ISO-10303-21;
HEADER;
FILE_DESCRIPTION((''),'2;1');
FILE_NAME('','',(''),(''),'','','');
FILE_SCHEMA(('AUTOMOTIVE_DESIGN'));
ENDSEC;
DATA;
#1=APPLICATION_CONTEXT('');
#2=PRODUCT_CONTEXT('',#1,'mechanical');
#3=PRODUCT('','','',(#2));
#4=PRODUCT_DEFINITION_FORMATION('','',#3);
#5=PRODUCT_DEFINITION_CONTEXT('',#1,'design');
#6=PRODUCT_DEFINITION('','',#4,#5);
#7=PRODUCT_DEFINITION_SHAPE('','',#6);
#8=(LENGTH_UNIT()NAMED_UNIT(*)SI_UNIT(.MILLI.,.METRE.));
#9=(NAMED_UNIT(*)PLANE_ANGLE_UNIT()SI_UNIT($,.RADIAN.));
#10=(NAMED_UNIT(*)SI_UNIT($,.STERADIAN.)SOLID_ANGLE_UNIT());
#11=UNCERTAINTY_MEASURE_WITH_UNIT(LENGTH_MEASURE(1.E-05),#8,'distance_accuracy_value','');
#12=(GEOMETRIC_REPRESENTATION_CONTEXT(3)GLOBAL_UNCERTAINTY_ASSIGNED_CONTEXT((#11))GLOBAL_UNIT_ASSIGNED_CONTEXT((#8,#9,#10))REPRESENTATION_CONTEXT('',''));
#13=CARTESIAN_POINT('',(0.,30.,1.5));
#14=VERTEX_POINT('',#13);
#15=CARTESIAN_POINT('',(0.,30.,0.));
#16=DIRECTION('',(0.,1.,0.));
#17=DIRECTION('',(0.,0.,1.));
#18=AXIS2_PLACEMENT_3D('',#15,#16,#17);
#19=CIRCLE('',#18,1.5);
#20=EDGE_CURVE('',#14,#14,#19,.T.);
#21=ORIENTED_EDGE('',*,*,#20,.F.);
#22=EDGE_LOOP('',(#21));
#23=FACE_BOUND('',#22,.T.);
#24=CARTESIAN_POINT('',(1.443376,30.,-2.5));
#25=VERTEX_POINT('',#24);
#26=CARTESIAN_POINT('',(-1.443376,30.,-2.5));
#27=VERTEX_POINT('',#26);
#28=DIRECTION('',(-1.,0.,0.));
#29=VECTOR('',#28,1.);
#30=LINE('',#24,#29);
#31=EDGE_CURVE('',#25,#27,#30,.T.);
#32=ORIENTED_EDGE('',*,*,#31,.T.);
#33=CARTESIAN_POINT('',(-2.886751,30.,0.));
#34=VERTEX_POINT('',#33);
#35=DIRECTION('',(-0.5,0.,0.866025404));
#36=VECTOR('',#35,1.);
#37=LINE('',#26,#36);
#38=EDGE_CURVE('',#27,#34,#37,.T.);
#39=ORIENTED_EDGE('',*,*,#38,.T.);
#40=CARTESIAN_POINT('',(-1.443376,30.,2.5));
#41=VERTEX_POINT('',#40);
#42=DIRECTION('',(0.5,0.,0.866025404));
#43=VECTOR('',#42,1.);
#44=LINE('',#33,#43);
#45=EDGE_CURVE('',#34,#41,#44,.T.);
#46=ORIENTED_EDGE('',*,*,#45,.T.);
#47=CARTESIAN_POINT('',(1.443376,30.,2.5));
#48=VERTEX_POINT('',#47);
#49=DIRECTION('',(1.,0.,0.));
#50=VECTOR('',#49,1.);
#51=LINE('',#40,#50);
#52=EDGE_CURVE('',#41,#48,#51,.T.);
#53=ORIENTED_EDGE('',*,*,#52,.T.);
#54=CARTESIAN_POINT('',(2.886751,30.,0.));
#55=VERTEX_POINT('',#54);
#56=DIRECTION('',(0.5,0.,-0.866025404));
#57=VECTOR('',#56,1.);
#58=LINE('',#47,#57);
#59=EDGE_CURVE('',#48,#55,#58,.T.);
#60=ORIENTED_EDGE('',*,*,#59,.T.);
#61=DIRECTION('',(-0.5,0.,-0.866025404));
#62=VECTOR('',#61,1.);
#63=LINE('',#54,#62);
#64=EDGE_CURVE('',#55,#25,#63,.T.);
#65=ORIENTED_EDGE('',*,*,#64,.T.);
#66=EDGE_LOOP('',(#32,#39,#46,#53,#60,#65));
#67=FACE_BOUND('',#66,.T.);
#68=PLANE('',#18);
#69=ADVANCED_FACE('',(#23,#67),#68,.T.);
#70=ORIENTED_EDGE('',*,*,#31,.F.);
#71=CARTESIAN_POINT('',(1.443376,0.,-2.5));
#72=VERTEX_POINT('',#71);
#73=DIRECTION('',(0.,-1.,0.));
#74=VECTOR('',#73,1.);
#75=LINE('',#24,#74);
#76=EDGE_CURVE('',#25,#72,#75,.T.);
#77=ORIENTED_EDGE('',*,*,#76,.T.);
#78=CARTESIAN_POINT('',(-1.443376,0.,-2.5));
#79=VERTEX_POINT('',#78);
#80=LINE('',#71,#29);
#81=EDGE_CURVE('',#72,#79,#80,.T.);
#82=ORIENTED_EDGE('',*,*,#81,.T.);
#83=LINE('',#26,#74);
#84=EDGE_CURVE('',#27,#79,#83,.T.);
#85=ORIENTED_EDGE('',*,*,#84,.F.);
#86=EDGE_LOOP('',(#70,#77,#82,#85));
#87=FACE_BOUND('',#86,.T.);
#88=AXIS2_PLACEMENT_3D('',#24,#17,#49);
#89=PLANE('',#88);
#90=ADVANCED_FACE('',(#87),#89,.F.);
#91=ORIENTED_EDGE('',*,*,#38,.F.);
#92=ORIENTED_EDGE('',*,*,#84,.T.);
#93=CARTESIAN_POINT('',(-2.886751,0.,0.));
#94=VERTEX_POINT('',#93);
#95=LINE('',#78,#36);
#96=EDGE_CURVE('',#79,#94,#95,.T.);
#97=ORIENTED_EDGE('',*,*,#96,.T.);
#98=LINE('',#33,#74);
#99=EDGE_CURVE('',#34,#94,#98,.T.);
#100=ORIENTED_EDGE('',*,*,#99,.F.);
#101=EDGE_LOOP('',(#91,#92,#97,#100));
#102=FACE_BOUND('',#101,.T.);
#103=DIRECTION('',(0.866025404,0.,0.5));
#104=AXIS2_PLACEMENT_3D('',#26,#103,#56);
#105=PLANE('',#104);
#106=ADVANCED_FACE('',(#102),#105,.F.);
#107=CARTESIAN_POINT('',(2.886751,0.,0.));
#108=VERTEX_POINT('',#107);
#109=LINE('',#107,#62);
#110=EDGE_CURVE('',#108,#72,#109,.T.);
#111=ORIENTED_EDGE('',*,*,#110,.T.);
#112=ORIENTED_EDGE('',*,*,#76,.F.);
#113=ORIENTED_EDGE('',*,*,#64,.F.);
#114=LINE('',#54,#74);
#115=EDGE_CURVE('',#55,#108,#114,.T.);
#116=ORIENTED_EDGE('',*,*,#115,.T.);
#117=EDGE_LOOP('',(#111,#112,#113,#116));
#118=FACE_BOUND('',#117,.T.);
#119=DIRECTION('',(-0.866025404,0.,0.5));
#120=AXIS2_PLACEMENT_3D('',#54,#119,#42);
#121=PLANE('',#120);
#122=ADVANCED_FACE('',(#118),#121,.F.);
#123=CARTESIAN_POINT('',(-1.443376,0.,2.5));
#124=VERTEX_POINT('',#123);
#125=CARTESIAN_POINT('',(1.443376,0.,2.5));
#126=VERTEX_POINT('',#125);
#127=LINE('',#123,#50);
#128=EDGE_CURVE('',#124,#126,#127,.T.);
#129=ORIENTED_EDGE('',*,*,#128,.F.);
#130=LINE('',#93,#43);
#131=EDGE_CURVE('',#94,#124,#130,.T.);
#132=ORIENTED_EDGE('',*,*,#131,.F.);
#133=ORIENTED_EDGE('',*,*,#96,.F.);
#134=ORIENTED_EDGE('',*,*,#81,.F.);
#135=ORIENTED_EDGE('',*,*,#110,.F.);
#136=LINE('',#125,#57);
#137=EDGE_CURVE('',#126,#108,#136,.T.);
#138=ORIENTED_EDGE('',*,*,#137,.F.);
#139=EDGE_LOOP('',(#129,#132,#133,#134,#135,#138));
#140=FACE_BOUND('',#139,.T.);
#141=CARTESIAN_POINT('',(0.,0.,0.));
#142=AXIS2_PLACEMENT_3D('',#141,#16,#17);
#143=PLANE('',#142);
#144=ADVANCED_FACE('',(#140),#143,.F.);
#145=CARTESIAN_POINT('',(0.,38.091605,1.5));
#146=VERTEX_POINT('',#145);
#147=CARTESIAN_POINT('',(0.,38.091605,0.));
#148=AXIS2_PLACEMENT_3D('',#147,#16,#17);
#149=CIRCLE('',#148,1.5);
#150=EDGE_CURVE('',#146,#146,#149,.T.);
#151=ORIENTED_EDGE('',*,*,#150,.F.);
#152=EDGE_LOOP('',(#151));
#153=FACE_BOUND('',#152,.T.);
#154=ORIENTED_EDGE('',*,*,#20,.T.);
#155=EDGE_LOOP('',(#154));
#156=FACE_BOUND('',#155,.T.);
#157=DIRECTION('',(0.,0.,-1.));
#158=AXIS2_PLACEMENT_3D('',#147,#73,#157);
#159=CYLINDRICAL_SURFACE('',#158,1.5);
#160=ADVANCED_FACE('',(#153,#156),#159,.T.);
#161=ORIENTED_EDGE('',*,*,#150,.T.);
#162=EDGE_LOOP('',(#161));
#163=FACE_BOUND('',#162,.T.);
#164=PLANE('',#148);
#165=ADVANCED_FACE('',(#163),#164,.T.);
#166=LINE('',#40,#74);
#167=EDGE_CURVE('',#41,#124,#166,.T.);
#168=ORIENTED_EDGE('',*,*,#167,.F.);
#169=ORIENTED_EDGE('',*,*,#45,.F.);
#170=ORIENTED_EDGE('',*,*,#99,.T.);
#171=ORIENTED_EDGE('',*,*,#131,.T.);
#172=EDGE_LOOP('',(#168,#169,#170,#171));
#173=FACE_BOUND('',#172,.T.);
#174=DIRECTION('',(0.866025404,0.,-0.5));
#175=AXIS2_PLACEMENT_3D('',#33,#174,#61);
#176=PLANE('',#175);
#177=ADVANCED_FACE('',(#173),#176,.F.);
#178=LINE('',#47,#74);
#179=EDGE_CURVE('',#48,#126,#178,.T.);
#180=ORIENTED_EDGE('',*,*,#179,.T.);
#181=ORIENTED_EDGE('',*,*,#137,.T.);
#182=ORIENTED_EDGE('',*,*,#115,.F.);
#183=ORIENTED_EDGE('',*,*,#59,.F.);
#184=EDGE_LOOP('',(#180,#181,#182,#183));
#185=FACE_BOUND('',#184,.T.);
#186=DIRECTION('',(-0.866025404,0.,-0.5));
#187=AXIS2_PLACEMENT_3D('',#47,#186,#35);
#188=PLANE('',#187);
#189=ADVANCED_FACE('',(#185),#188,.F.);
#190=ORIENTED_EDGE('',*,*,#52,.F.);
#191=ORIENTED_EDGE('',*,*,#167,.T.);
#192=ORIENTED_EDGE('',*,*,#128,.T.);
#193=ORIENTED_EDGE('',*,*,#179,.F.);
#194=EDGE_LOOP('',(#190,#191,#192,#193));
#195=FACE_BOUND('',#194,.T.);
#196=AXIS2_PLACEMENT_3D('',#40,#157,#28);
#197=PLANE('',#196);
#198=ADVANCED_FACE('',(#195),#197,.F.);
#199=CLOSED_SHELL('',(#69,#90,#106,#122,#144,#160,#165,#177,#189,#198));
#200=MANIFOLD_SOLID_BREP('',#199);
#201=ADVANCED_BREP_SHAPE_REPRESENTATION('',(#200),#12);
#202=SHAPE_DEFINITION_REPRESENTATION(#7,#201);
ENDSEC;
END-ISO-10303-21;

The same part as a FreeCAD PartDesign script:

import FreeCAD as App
import Part
import Sketcher

V = App.Vector
Q = App.Units.Quantity


def add_polygon(sketch, points):
    """Adds a closed chain of lines whose ends are joined by coincident constraints."""
    first, n = sketch.GeometryCount, len(points)
    for a, b in zip(points, points[1:] + points[:1]):
        sketch.addGeometry(Part.LineSegment(App.Vector(*a, 0), App.Vector(*b, 0)), False)
    for i in range(n):
        sketch.addConstraint(Sketcher.Constraint("Coincident", first + i, 2, first + (i + 1) % n, 1))

doc = App.newDocument("Part")
params = doc.addObject("Spreadsheet::Sheet", "Params")
for row, (alias, value) in enumerate([
    ("pad1_length", "30 mm"),
    ("sketch2_diameter", "3 mm"),
    ("pad2_length", "8.091605 mm"),
    ("sketch3_diameter", "3 mm"),
    ("pad3_length", "8 mm"),
], start=1):
    params.set(f"A{row}", alias)
    params.set(f"B{row}", "=" + value)
    params.setAlias(f"B{row}", alias)

body = doc.addObject("PartDesign::Body", "Body")

# Sketch on XZ plane
sketch1 = doc.addObject("Sketcher::SketchObject", "Sketch")
body.addObject(sketch1)
sketch1.AttachmentSupport = (doc.XZ_Plane, [""])
sketch1.MapMode = "FlatFace"
add_polygon(sketch1, [(-2.886751, 0), (-1.443376, 2.5), (1.443376, 2.5), (2.886751, 0), (1.443376, -2.5), (-1.443376, -2.5)])  # lines 0-5
sketch1.addConstraint(Sketcher.Constraint("Horizontal", 1))
sketch1.addConstraint(Sketcher.Constraint("Horizontal", 4))
sketch1.addConstraint(Sketcher.Constraint("Symmetric", 0, 2, 3, 2, -1, 1))
sketch1.addConstraint(Sketcher.Constraint("Symmetric", 2, 2, 5, 2, -1, 1))
sketch1.addConstraint(Sketcher.Constraint("PointOnObject", 2, 2, -1))
sketch1.addConstraint(Sketcher.Constraint("Parallel", 2, 5))
sketch1.addConstraint(Sketcher.Constraint("Vertical", 1, 2, 3, 2))
sketch1.addConstraint(Sketcher.Constraint("Angle", 0, Q("60 deg")))
sketch1.addConstraint(Sketcher.Constraint("DistanceY", 3, 2, 1, 2, Q("5 mm")))
sketch1.addConstraint(Sketcher.Constraint("DistanceX", 1, 1, 1, 2, Q("2.886751 mm")))
pad1 = doc.addObject("PartDesign::Pad", "Pad")
body.addObject(pad1)
pad1.Profile = sketch1
pad1.setExpression("Length", "Params.pad1_length")
pad1.Reversed = True

# Sketch on XZ plane
sketch2 = doc.addObject("Sketcher::SketchObject", "Sketch001")
body.addObject(sketch2)
sketch2.AttachmentSupport = (doc.XZ_Plane, [""])
sketch2.MapMode = "FlatFace"
sketch2.AttachmentOffset = App.Placement(V(0, 0, -30), App.Rotation())
sketch2.addGeometry(Part.Circle(V(0, 0, 0), V(0, 0, 1), 1.5), False)
sketch2.addConstraint(Sketcher.Constraint("Coincident", 0, 3, -1, 1))
sketch2.addConstraint(Sketcher.Constraint("Diameter", 0, Q("3 mm")))
sketch2.setExpression("Constraints[1]", "Params.sketch2_diameter")
pad2 = doc.addObject("PartDesign::Pad", "Pad001")
body.addObject(pad2)
pad2.Profile = sketch2
pad2.setExpression("Length", "Params.pad2_length")
pad2.Reversed = True

# Sketch on XZ plane
sketch3 = doc.addObject("Sketcher::SketchObject", "Sketch002")
body.addObject(sketch3)
sketch3.AttachmentSupport = (doc.XZ_Plane, [""])
sketch3.MapMode = "FlatFace"
sketch3.AttachmentOffset = App.Placement(V(0, 0, -30), App.Rotation())
sketch3.addGeometry(Part.Circle(V(0, 0, 0), V(0, 0, 1), 1.5), False)
sketch3.addConstraint(Sketcher.Constraint("Coincident", 0, 3, -1, 1))
sketch3.addConstraint(Sketcher.Constraint("Diameter", 0, Q("3 mm")))
sketch3.setExpression("Constraints[1]", "Params.sketch3_diameter")
pad3 = doc.addObject("PartDesign::Pad", "Pad002")
body.addObject(pad3)
pad3.Profile = sketch3
pad3.setExpression("Length", "Params.pad3_length")
pad3.Reversed = True

doc.recompute()
